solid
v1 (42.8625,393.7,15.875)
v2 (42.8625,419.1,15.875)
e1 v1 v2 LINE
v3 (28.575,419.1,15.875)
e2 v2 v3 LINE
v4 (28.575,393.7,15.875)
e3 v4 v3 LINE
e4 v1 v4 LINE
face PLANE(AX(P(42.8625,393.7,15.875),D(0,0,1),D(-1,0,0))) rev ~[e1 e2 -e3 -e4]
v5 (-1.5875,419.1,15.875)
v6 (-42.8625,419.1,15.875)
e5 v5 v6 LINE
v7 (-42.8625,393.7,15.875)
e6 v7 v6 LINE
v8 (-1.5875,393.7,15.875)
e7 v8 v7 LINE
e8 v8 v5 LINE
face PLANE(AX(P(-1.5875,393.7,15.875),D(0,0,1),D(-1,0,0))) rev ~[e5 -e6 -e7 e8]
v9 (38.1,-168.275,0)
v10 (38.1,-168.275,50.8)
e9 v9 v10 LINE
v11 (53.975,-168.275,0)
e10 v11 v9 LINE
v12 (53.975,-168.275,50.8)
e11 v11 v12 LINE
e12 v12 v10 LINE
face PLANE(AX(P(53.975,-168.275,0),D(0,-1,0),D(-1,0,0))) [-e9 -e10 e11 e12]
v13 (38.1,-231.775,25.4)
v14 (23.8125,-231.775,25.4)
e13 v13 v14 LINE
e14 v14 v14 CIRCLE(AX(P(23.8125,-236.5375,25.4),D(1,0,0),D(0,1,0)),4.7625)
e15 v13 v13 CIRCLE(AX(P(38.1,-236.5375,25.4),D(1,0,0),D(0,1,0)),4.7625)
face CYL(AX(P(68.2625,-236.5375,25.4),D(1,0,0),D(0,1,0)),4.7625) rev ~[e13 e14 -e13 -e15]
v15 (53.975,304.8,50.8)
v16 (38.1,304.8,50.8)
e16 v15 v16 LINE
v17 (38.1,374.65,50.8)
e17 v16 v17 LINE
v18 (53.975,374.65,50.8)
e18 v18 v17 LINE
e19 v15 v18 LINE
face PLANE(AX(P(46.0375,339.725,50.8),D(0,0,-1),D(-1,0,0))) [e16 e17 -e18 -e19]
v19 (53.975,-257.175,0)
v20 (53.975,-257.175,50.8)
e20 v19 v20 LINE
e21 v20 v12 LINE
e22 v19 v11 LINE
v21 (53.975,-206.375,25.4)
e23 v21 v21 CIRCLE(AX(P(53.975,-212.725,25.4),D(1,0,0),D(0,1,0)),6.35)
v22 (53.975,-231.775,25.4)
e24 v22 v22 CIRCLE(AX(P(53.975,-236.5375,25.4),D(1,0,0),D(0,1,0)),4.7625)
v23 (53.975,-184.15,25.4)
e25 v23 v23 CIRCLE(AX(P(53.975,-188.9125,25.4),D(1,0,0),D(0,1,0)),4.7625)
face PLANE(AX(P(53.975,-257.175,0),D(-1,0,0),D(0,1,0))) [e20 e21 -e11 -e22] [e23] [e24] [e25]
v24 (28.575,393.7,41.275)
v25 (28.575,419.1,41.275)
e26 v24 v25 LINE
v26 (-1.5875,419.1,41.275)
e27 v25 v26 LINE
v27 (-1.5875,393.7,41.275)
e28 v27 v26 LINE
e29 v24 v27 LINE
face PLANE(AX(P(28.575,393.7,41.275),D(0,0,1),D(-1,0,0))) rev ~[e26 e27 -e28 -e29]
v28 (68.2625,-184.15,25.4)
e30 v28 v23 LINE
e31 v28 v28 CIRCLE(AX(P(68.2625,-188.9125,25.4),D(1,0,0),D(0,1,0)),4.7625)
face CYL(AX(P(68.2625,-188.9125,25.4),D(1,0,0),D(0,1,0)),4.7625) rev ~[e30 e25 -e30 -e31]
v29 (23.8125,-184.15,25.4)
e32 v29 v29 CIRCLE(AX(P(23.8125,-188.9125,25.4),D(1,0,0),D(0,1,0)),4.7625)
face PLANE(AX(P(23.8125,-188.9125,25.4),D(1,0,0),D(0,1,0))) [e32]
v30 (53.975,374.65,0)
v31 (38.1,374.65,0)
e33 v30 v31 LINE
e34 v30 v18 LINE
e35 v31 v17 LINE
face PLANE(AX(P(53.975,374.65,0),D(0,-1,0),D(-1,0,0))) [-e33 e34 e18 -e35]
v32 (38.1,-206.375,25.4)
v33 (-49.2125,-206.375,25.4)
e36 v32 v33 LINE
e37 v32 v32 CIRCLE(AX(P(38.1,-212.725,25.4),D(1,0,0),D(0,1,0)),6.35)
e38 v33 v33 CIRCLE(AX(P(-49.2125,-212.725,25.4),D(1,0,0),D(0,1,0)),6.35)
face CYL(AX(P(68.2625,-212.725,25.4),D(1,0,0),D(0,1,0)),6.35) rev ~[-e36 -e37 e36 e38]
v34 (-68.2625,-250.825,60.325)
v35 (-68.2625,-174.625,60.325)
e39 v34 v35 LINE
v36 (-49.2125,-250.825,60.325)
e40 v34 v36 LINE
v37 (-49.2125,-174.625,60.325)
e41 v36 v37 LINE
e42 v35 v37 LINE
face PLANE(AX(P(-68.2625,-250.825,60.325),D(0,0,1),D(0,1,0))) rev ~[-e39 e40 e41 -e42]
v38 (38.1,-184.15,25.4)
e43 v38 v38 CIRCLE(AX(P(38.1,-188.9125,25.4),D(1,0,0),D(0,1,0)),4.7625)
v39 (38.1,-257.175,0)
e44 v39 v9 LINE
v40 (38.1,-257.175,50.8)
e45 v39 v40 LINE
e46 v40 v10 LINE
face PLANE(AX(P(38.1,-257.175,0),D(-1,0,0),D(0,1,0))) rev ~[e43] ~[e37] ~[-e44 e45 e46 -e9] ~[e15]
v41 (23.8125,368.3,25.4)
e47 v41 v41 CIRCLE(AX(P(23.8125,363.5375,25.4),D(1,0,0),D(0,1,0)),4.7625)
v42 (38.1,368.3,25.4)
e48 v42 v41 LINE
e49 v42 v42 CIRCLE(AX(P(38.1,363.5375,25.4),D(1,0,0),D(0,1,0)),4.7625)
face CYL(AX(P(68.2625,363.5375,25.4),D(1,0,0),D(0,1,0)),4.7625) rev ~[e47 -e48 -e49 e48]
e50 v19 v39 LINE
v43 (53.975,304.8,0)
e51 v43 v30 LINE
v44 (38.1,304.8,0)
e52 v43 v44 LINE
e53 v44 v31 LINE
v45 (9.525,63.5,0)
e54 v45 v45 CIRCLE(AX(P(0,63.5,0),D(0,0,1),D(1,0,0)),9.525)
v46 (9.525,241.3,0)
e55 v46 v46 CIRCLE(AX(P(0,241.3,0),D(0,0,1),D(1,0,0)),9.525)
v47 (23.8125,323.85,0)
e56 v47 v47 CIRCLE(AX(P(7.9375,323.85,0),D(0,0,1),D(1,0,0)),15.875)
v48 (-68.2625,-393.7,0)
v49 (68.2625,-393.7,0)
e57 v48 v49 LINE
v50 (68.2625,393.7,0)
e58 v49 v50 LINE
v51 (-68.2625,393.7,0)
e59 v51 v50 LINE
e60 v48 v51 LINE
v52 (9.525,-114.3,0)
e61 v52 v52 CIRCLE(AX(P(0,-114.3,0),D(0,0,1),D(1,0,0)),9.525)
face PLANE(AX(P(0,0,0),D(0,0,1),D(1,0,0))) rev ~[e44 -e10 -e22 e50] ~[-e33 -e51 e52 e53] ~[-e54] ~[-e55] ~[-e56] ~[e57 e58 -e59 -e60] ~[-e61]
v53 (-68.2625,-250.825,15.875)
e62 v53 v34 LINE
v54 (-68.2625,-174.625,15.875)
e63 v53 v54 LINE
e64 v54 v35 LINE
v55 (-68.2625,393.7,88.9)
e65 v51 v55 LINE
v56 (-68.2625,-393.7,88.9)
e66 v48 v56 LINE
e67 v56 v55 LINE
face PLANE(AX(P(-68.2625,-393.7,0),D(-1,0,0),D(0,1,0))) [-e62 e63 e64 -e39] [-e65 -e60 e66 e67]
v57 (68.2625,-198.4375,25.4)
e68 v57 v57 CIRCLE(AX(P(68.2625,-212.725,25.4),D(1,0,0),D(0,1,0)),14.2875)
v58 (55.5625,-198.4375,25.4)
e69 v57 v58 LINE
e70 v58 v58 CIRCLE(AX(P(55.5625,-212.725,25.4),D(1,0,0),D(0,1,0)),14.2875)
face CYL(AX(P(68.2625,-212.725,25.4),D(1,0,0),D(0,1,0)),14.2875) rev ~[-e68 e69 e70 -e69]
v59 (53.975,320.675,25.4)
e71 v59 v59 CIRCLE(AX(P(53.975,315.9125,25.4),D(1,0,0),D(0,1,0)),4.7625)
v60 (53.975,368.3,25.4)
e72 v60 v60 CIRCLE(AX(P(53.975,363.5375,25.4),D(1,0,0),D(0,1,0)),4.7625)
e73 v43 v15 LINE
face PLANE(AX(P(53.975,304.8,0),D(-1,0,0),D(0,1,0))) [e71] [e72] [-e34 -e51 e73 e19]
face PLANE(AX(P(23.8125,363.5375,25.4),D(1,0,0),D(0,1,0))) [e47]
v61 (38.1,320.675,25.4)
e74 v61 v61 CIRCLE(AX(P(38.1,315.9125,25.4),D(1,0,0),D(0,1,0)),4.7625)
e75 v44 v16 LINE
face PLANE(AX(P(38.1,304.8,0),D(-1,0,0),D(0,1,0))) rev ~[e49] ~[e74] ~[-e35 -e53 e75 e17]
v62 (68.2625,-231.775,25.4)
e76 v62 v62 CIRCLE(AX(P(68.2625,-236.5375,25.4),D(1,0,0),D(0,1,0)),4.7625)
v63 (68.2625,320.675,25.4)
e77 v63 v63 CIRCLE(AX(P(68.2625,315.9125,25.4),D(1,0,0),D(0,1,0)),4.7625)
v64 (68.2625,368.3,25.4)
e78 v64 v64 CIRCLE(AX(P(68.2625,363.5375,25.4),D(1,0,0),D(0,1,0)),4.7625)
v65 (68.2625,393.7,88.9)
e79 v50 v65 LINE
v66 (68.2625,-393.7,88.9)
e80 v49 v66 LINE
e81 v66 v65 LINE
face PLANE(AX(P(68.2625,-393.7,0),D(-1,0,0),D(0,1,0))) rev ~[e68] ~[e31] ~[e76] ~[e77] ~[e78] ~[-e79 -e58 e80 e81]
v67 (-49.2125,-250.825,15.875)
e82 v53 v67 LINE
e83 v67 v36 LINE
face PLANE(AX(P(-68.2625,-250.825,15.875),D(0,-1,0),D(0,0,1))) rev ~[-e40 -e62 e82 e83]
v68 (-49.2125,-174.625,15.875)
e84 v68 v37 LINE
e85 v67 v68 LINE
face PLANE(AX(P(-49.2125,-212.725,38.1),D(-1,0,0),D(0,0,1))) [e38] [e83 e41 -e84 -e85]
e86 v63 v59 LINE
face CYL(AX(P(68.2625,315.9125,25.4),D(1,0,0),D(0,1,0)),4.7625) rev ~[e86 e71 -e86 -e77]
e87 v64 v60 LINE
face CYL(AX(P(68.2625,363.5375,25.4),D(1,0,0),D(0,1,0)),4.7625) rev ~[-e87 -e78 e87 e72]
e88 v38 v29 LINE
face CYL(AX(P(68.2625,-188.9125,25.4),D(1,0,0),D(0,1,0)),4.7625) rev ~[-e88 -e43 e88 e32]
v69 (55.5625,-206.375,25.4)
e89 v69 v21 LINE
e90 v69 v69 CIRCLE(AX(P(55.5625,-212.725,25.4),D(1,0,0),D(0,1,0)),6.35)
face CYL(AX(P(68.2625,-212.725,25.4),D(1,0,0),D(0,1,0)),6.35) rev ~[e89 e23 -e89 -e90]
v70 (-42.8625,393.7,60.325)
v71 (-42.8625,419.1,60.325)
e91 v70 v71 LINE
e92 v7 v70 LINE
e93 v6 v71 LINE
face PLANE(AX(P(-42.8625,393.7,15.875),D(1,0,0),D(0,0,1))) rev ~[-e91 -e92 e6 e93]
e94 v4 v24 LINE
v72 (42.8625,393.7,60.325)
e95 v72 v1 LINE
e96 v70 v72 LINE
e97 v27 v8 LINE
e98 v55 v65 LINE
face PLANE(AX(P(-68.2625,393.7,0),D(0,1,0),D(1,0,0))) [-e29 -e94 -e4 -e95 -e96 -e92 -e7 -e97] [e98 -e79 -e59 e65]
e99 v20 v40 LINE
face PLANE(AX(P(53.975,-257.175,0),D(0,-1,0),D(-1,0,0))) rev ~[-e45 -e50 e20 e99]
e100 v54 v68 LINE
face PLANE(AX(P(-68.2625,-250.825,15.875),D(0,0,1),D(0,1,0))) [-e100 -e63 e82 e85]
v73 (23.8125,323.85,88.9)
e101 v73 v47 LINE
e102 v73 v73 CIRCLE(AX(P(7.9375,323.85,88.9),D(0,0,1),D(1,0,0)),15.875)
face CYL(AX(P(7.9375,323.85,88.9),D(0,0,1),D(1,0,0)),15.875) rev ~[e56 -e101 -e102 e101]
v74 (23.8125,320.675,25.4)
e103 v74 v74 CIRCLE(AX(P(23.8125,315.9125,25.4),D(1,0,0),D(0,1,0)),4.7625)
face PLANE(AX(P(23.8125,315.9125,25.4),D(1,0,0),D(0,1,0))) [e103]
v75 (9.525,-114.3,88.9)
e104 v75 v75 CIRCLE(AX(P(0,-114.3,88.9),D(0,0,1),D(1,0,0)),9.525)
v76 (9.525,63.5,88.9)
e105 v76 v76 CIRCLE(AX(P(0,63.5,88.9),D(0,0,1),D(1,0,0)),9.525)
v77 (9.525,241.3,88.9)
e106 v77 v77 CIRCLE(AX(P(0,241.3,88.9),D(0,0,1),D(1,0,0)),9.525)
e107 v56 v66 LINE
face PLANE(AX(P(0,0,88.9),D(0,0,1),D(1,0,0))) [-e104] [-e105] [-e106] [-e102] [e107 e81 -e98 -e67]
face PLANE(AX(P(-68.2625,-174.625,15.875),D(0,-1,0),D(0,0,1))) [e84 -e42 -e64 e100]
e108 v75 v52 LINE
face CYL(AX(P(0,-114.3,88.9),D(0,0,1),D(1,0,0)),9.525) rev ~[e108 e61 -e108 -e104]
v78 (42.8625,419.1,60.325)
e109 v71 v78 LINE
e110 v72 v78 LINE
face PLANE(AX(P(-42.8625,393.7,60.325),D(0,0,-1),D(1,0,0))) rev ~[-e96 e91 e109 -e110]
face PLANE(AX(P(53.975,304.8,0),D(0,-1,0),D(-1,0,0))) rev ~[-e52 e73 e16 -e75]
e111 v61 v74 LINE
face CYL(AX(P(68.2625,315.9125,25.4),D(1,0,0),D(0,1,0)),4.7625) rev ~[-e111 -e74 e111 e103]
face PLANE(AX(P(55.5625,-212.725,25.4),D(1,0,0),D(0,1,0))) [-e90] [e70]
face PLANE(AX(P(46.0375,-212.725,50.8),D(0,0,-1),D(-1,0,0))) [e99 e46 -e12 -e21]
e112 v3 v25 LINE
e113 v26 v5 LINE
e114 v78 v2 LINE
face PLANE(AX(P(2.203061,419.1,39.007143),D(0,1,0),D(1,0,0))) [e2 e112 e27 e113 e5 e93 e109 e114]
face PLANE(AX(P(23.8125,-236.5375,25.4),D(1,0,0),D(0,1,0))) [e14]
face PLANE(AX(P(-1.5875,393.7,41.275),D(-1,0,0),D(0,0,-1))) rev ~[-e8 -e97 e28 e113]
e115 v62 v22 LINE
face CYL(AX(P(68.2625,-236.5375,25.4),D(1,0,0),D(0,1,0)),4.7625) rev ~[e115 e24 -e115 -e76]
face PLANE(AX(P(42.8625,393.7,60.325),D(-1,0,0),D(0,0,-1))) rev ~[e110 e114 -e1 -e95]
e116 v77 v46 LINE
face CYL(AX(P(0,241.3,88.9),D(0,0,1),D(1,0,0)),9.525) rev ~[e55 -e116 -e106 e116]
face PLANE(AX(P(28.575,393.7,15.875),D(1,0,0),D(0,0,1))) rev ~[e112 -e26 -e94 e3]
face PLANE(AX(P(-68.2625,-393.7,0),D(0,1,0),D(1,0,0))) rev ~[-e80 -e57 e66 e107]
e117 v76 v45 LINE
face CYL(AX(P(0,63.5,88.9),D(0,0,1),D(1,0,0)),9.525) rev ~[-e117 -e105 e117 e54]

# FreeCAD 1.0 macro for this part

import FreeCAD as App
import Part
import Sketcher
Q = App.Units.Quantity

doc = App.newDocument("Part")
body = doc.addObject("PartDesign::Body", "Body")

# Sketch on XY plane
sketch1 = body.newObject("Sketcher::SketchObject", "Sketch")
sketch1.AttachmentSupport = (doc.getObject("XY_Plane"), [""])
sketch1.MapMode = "FlatFace"
sketch1.addGeometry([
    Part.LineSegment(App.Vector(-68, 394, 0), App.Vector(-68, -394, 0)),
    Part.LineSegment(App.Vector(-68, -394, 0), App.Vector(68, -394, 0)),
    Part.LineSegment(App.Vector(68, -394, 0), App.Vector(68, 394, 0)),
    Part.LineSegment(App.Vector(68, 394, 0), App.Vector(-68, 394, 0)),
], False)
sketch1.addConstraint([
    Sketcher.Constraint("Coincident", 0, 2, 1, 1),
    Sketcher.Constraint("Coincident", 1, 2, 2, 1),
    Sketcher.Constraint("Coincident", 2, 2, 3, 1),
    Sketcher.Constraint("Coincident", 3, 2, 0, 1),
    Sketcher.Constraint("Vertical", 0),
    Sketcher.Constraint("Horizontal", 1),
    Sketcher.Constraint("Vertical", 2),
    Sketcher.Constraint("Horizontal", 3),
    Sketcher.Constraint("Symmetric", 0, 2, 2, 2, -1, 1),
    Sketcher.Constraint("DistanceY", 0, 2, 0, 1, Q("31 in")),
    Sketcher.Constraint("DistanceX", 1, 1, 1, 2, Q("5.375 in")),
])
pad1 = body.newObject("PartDesign::Pad", "Pad")
pad1.Profile = sketch1
pad1.Length = Q("3.5 in")

# Sketch on XZ plane
sketch2 = body.newObject("Sketcher::SketchObject", "Sketch001")
sketch2.AttachmentSupport = (doc.getObject("XZ_Plane"), [""])
sketch2.MapMode = "FlatFace"
sketch2.AttachmentOffset = App.Placement(App.Vector(0, 0, -15.5 * 25.4), App.Rotation())
sketch2.addGeometry([
    Part.LineSegment(App.Vector(-43, 60, 0), App.Vector(43, 60, 0)),  # 0
    Part.LineSegment(App.Vector(43, 60, 0), App.Vector(43, 16, 0)),  # 1
    Part.LineSegment(App.Vector(43, 16, 0), App.Vector(29, 16, 0)),  # 2
    Part.LineSegment(App.Vector(29, 16, 0), App.Vector(29, 41, 0)),  # 3
    Part.LineSegment(App.Vector(29, 41, 0), App.Vector(-2, 41, 0)),  # 4
    Part.LineSegment(App.Vector(-2, 41, 0), App.Vector(-2, 16, 0)),  # 5
    Part.LineSegment(App.Vector(-2, 16, 0), App.Vector(-43, 16, 0)),  # 6
    Part.LineSegment(App.Vector(-43, 16, 0), App.Vector(-43, 60, 0)),  # 7
], False)
sketch2.addConstraint([
    Sketcher.Constraint("Coincident", 0, 2, 1, 1),
    Sketcher.Constraint("Coincident", 1, 2, 2, 1),
    Sketcher.Constraint("Coincident", 2, 2, 3, 1),
    Sketcher.Constraint("Coincident", 3, 2, 4, 1),
    Sketcher.Constraint("Coincident", 4, 2, 5, 1),
    Sketcher.Constraint("Coincident", 5, 2, 6, 1),
    Sketcher.Constraint("Coincident", 6, 2, 7, 1),
    Sketcher.Constraint("Coincident", 7, 2, 0, 1),
    Sketcher.Constraint("Horizontal", 0),
    Sketcher.Constraint("Vertical", 1),
    Sketcher.Constraint("Horizontal", 2),
    Sketcher.Constraint("Vertical", 3),
    Sketcher.Constraint("Horizontal", 4),
    Sketcher.Constraint("Vertical", 5),
    Sketcher.Constraint("Horizontal", 6),
    Sketcher.Constraint("Vertical", 7),
    Sketcher.Constraint("Symmetric", 1, 2, 6, 2, -2),
    Sketcher.Constraint("DistanceY", 3, 1, 3, 2, Q("1 in")),
    Sketcher.Constraint("DistanceY", 1, 2, 1, 1, Q("1.75 in")),
    Sketcher.Constraint("DistanceX", 0, 1, 0, 2, Q("3.375 in")),
    Sketcher.Constraint("DistanceX", 2, 2, 2, 1, Q("0.5625 in")),
    Sketcher.Constraint("DistanceX", 4, 2, 4, 1, Q("1.1875 in")),
    Sketcher.Constraint("DistanceY", -1, 1, 0, 2, Q("2.375 in")),
])
pad2 = body.newObject("PartDesign::Pad", "Pad001")
pad2.Profile = sketch2
pad2.Length = Q("1 in")
pad2.Reversed = True

# Sketch on XY plane
sketch3 = body.newObject("Sketcher::SketchObject", "Sketch002")
sketch3.AttachmentSupport = (doc.getObject("XY_Plane"), [""])
sketch3.MapMode = "FlatFace"
sketch3.AttachmentOffset = App.Placement(App.Vector(0, 0, 3.5 * 25.4), App.Rotation())
sketch3.addGeometry([
    Part.Circle(App.Vector(0, 64, 0), App.Vector(0, 0, 1), 10),
    Part.Circle(App.Vector(0, -114, 0), App.Vector(0, 0, 1), 10),
    Part.Circle(App.Vector(0, 241, 0), App.Vector(0, 0, 1), 10),
    Part.Circle(App.Vector(8, 324, 0), App.Vector(0, 0, 1), 16),
], False)
sketch3.addConstraint([
    Sketcher.Constraint("Equal", 0, 1),
    Sketcher.Constraint("Equal", 1, 2),
    Sketcher.Constraint("PointOnObject", 0, 3, -2),
    Sketcher.Constraint("PointOnObject", 1, 3, -2),
    Sketcher.Constraint("PointOnObject", 2, 3, -2),
    Sketcher.Constraint("Diameter", 0, Q("0.75 in")),
    Sketcher.Constraint("Diameter", 3, Q("1.25 in")),
    Sketcher.Constraint("DistanceY", 1, 3, 0, 3, Q("7 in")),
    Sketcher.Constraint("DistanceY", 0, 3, 2, 3, Q("7 in")),
    Sketcher.Constraint("DistanceY", -1, 1, 0, 3, Q("2.5 in")),
    Sketcher.Constraint("DistanceY", -1, 1, 3, 3, Q("12.75 in")),
    Sketcher.Constraint("DistanceX", -1, 1, 3, 3, Q("0.3125 in")),
])
pocket1 = body.newObject("PartDesign::Pocket", "Pocket")
pocket1.Profile = sketch3
pocket1.Type = "ThroughAll"

# Sketch on YZ plane
sketch4 = body.newObject("Sketcher::SketchObject", "Sketch003")
sketch4.AttachmentSupport = (doc.getObject("YZ_Plane"), [""])
sketch4.MapMode = "FlatFace"
sketch4.AttachmentOffset = App.Placement(App.Vector(0, 0, -2.6875 * 25.4), App.Rotation())
sketch4.addGeometry([
    Part.LineSegment(App.Vector(-175, 16, 0), App.Vector(-251, 16, 0)),
    Part.LineSegment(App.Vector(-251, 16, 0), App.Vector(-251, 60, 0)),
    Part.LineSegment(App.Vector(-251, 60, 0), App.Vector(-175, 60, 0)),
    Part.LineSegment(App.Vector(-175, 60, 0), App.Vector(-175, 16, 0)),
], False)
sketch4.addConstraint([
    Sketcher.Constraint("Coincident", 0, 2, 1, 1),
    Sketcher.Constraint("Coincident", 1, 2, 2, 1),
    Sketcher.Constraint("Coincident", 2, 2, 3, 1),
    Sketcher.Constraint("Coincident", 3, 2, 0, 1),
    Sketcher.Constraint("Horizontal", 0),
    Sketcher.Constraint("Vertical", 1),
    Sketcher.Constraint("Horizontal", 2),
    Sketcher.Constraint("Vertical", 3),
    Sketcher.Constraint("DistanceX", 0, 2, 0, 1, Q("3 in")),
    Sketcher.Constraint("DistanceY", 1, 1, 1, 2, Q("1.75 in")),
    Sketcher.Constraint("DistanceX", 0, 2, -1, 1, Q("9.875 in")),
    Sketcher.Constraint("DistanceY", -1, 1, 0, 2, Q("0.625 in")),
])
pocket2 = body.newObject("PartDesign::Pocket", "Pocket001")
pocket2.Profile = sketch4
pocket2.Length = Q("0.75 in")
pocket2.Reversed = True

# Sketch on XY plane
sketch5 = body.newObject("Sketcher::SketchObject", "Sketch004")
sketch5.AttachmentSupport = (doc.getObject("XY_Plane"), [""])
sketch5.MapMode = "FlatFace"
sketch5.addGeometry([
    Part.LineSegment(App.Vector(54, 375, 0), App.Vector(54, 305, 0)),  # 0
    Part.LineSegment(App.Vector(54, 305, 0), App.Vector(38, 305, 0)),  # 1
    Part.LineSegment(App.Vector(38, 305, 0), App.Vector(38, 375, 0)),  # 2
    Part.LineSegment(App.Vector(38, 375, 0), App.Vector(54, 375, 0)),  # 3
    Part.LineSegment(App.Vector(54, -168, 0), App.Vector(54, -257, 0)),  # 4
    Part.LineSegment(App.Vector(54, -257, 0), App.Vector(38, -257, 0)),  # 5
    Part.LineSegment(App.Vector(38, -257, 0), App.Vector(38, -168, 0)),  # 6
    Part.LineSegment(App.Vector(38, -168, 0), App.Vector(54, -168, 0)),  # 7
], False)
sketch5.addConstraint([
    Sketcher.Constraint("Coincident", 0, 2, 1, 1),
    Sketcher.Constraint("Coincident", 1, 2, 2, 1),
    Sketcher.Constraint("Coincident", 2, 2, 3, 1),
    Sketcher.Constraint("Coincident", 3, 2, 0, 1),
    Sketcher.Constraint("Coincident", 4, 2, 5, 1),
    Sketcher.Constraint("Coincident", 5, 2, 6, 1),
    Sketcher.Constraint("Coincident", 6, 2, 7, 1),
    Sketcher.Constraint("Coincident", 7, 2, 4, 1),
    Sketcher.Constraint("Vertical", 0),
    Sketcher.Constraint("Horizontal", 1),
    Sketcher.Constraint("Vertical", 2),
    Sketcher.Constraint("Horizontal", 3),
    Sketcher.Constraint("Vertical", 4),
    Sketcher.Constraint("Horizontal", 5),
    Sketcher.Constraint("Vertical", 6),
    Sketcher.Constraint("Horizontal", 7),
    Sketcher.Constraint("Vertical", 3, 2, 4, 2),
    Sketcher.Constraint("Vertical", 2, 2, 5, 2),
    Sketcher.Constraint("DistanceY", 4, 2, 4, 1, Q("3.5 in")),
    Sketcher.Constraint("DistanceY", -1, 1, 0, 2, Q("12 in")),
    Sketcher.Constraint("DistanceY", 0, 2, 0, 1, Q("2.75 in")),
    Sketcher.Constraint("DistanceX", -1, 1, 1, 2, Q("1.5 in")),
    Sketcher.Constraint("DistanceX", 1, 2, 1, 1, Q("0.625 in")),
    Sketcher.Constraint("DistanceY", 4, 2, -1, 1, Q("10.125 in")),
])
pocket3 = body.newObject("PartDesign::Pocket", "Pocket002")
pocket3.Profile = sketch5
pocket3.Length = Q("2 in")
pocket3.Reversed = True

# Sketch on YZ plane
sketch6 = body.newObject("Sketcher::SketchObject", "Sketch005")
sketch6.AttachmentSupport = (doc.getObject("YZ_Plane"), [""])
sketch6.MapMode = "FlatFace"
sketch6.AttachmentOffset = App.Placement(App.Vector(0, 0, 2.6875 * 25.4), App.Rotation())
sketch6.addGeometry([
    Part.Circle(App.Vector(-236.5, 25.4, 0), App.Vector(0, 0, 1), 4.8),
    Part.Circle(App.Vector(-188.9, 25.4, 0), App.Vector(0, 0, 1), 4.8),
    Part.Circle(App.Vector(315.9, 25.4, 0), App.Vector(0, 0, 1), 4.8),
    Part.Circle(App.Vector(363.5, 25.4, 0), App.Vector(0, 0, 1), 4.8),
], False)
sketch6.addConstraint([
    Sketcher.Constraint("Equal", 0, 1),
    Sketcher.Constraint("Equal", 1, 2),
    Sketcher.Constraint("Equal", 2, 3),
    Sketcher.Constraint("Horizontal", 0, 3, 1, 3),
    Sketcher.Constraint("Horizontal", 1, 3, 2, 3),
    Sketcher.Constraint("Horizontal", 2, 3, 3, 3),
    Sketcher.Constraint("Diameter", 0, Q("0.375 in")),
    Sketcher.Constraint("DistanceY", -1, 1, 0, 3, Q("1 in")),
    Sketcher.Constraint("DistanceX", 0, 3, 2, 3, Q("21.75 in")),
    Sketcher.Constraint("DistanceX", 1, 3, 3, 3, Q("21.75 in")),
    Sketcher.Constraint("DistanceX", 0, 3, -1, 1, Q("9.3125 in")),
    Sketcher.Constraint("DistanceX", 1, 3, -1, 1, Q("7.4375 in")),
])
pocket4 = body.newObject("PartDesign::Pocket", "Pocket003")
pocket4.Profile = sketch6
pocket4.Length = Q("1.75 in")

# Sketch on YZ plane
sketch7 = body.newObject("Sketcher::SketchObject", "Sketch006")
sketch7.AttachmentSupport = (doc.getObject("YZ_Plane"), [""])
sketch7.MapMode = "FlatFace"
sketch7.AttachmentOffset = App.Placement(App.Vector(0, 0, 2.6875 * 25.4), App.Rotation())
sketch7.addGeometry(Part.Circle(App.Vector(-213, 25, 0), App.Vector(0, 0, 1), 6), False)
sketch7.addConstraint([
    Sketcher.Constraint("Diameter", 0, Q("0.5 in")),
    Sketcher.Constraint("DistanceY", -1, 1, 0, 3, Q("1 in")),
    Sketcher.Constraint("DistanceX", 0, 3, -1, 1, Q("8.375 in")),
])
pocket5 = body.newObject("PartDesign::Pocket", "Pocket004")
pocket5.Profile = sketch7
pocket5.Type = "ThroughAll"

# Sketch on YZ plane
sketch8 = body.newObject("Sketcher::SketchObject", "Sketch007")
sketch8.AttachmentSupport = (doc.getObject("YZ_Plane"), [""])
sketch8.MapMode = "FlatFace"
sketch8.AttachmentOffset = App.Placement(App.Vector(0, 0, 2.6875 * 25.4), App.Rotation())
sketch8.addGeometry(Part.Circle(App.Vector(-213, 25, 0), App.Vector(0, 0, 1), 14), False)
sketch8.addConstraint([
    Sketcher.Constraint("Diameter", 0, Q("1.125 in")),
    Sketcher.Constraint("DistanceY", -1, 1, 0, 3, Q("1 in")),
    Sketcher.Constraint("DistanceX", 0, 3, -1, 1, Q("8.375 in")),
])
pocket6 = body.newObject("PartDesign::Pocket", "Pocket005")
pocket6.Profile = sketch8
pocket6.Length = Q("0.5 in")

doc.recompute()
